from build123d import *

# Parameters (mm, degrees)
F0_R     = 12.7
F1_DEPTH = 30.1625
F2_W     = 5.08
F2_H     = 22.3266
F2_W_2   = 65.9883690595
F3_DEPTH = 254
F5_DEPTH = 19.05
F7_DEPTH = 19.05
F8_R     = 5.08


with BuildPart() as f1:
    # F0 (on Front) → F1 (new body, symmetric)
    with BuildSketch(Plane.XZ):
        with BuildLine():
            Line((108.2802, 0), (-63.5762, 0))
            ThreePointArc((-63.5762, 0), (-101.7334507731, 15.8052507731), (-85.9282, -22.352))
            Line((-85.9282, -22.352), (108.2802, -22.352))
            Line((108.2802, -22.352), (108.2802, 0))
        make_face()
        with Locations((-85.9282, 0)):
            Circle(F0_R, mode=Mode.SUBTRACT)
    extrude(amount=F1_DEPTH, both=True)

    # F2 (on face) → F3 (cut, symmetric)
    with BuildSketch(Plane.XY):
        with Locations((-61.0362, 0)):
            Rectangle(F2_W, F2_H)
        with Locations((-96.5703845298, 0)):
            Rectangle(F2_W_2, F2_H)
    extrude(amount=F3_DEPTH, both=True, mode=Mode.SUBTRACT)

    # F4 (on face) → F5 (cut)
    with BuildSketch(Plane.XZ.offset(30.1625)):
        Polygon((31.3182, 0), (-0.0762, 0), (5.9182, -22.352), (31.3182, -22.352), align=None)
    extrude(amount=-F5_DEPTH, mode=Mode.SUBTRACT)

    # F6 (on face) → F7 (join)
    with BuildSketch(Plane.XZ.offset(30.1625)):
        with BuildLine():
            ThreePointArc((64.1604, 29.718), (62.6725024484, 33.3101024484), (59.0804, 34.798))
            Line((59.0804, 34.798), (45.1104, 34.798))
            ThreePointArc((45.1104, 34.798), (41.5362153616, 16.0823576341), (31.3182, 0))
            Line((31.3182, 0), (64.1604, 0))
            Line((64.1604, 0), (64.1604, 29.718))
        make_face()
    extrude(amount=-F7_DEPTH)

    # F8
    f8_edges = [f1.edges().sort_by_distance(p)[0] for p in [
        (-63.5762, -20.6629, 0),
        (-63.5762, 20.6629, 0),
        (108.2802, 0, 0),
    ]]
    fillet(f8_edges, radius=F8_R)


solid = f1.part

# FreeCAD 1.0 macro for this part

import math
import FreeCAD as App
import Part
import Sketcher
from FreeCAD import Vector
Q = App.Units.Quantity


def edges_at(feature, points):
    """Names of the edges that pass closest to the given points."""
    edges = feature.Shape.Edges
    near = lambda p: min(range(len(edges)), key=lambda i: edges[i].distToShape(Part.Vertex(*p))[0])
    return sorted({f"Edge{near(p) + 1}" for p in points})

doc = App.newDocument("Part")
body = doc.addObject("PartDesign::Body", "Body")

# Sketch on XZ plane
sketch1 = body.newObject("Sketcher::SketchObject", "Sketch")
sketch1.AttachmentSupport = (doc.getObject("XZ_Plane"), [""])
sketch1.MapMode = "FlatFace"
sketch1.addGeometry([
    Part.LineSegment(Vector(108, 0, 0), Vector(-64, 0, 0)),  # 0
    Part.ArcOfCircle(Part.Circle(Vector(-86, 0, 0), Vector(0, 0, 1), 22), math.radians(0), math.radians(270)),  # 1
    Part.LineSegment(Vector(-86, -22, 0), Vector(108, -22, 0)),  # 2
    Part.LineSegment(Vector(108, -22, 0), Vector(108, 0, 0)),  # 3
    Part.Circle(Vector(-86, 0, 0), Vector(0, 0, 1), 13),  # 4
], False)
sketch1.addConstraint([
    Sketcher.Constraint("Coincident", 0, 2, 1, 1),
    Sketcher.Constraint("Tangent", 1, 2, 2, 1),
    Sketcher.Constraint("Coincident", 2, 2, 3, 1),
    Sketcher.Constraint("Coincident", 3, 2, 0, 1),
    Sketcher.Constraint("Horizontal", 0),
    Sketcher.Constraint("Horizontal", 2),
    Sketcher.Constraint("Vertical", 3),
    Sketcher.Constraint("Coincident", 4, 3, 1, 3),
    Sketcher.Constraint("PointOnObject", 1, 3, -1),
    Sketcher.Constraint("PointOnObject", 0, 2, -1),
    Sketcher.Constraint("Diameter", 4, Q("1 in")),
    Sketcher.Constraint("Radius", 1, Q("0.88 in")),
    Sketcher.Constraint("DistanceX", 0, 2, 0, 1, Q("6.766 in")),
    Sketcher.Constraint("DistanceX", 1, 3, -1, 1, Q("3.383 in")),
])
pad1 = body.newObject("PartDesign::Pad", "Pad")
pad1.Profile = sketch1
pad1.Length = Q("2.375 in")
pad1.Midplane = True

# Sketch on XY plane
sketch2 = body.newObject("Sketcher::SketchObject", "Sketch001")
sketch2.AttachmentSupport = (doc.getObject("XY_Plane"), [""])
sketch2.MapMode = "FlatFace"
sketch2.addGeometry([
    Part.LineSegment(Vector(-58, -11, 0), Vector(-58, 11, 0)),
    Part.LineSegment(Vector(-58, 11, 0), Vector(-130, 11, 0)),
    Part.LineSegment(Vector(-130, 11, 0), Vector(-130, -11, 0)),
    Part.LineSegment(Vector(-130, -11, 0), Vector(-58, -11, 0)),
], False)
sketch2.addConstraint([
    Sketcher.Constraint("Coincident", 0, 2, 1, 1),
    Sketcher.Constraint("Coincident", 1, 2, 2, 1),
    Sketcher.Constraint("Coincident", 2, 2, 3, 1),
    Sketcher.Constraint("Coincident", 3, 2, 0, 1),
    Sketcher.Constraint("Vertical", 0),
    Sketcher.Constraint("Horizontal", 1),
    Sketcher.Constraint("Vertical", 2),
    Sketcher.Constraint("Horizontal", 3),
    Sketcher.Constraint("DistanceY", 0, 1, 0, 2, Q("0.879 in")),
    Sketcher.Constraint("DistanceX", 0, 2, -1, 1, Q("2.303 in")),
    Sketcher.Constraint("DistanceY", -1, 1, 0, 2, Q("0.4395 in")),
    Sketcher.Constraint("DistanceX", 1, 2, 1, 1, Q("71.068369 mm")),
])
pocket1 = body.newObject("PartDesign::Pocket", "Pocket")
pocket1.Profile = sketch2
pocket1.Length = Q("20 in")
pocket1.Midplane = True

# Sketch on XZ plane
sketch3 = body.newObject("Sketcher::SketchObject", "Sketch002")
sketch3.AttachmentSupport = (doc.getObject("XZ_Plane"), [""])
sketch3.MapMode = "FlatFace"
sketch3.AttachmentOffset = App.Placement(Vector(0, 0, 1.1875 * 25.4), App.Rotation())
sketch3.addGeometry([
    Part.LineSegment(Vector(31, 0, 0), Vector(0, 0, 0)),
    Part.LineSegment(Vector(0, 0, 0), Vector(6, -22, 0)),
    Part.LineSegment(Vector(6, -22, 0), Vector(31, -22, 0)),
    Part.LineSegment(Vector(31, -22, 0), Vector(31, 0, 0)),
], False)
sketch3.addConstraint([
    Sketcher.Constraint("Coincident", 0, 2, 1, 1),
    Sketcher.Constraint("Coincident", 1, 2, 2, 1),
    Sketcher.Constraint("Coincident", 2, 2, 3, 1),
    Sketcher.Constraint("Coincident", 3, 2, 0, 1),
    Sketcher.Constraint("Horizontal", 0),
    Sketcher.Constraint("Horizontal", 2),
    Sketcher.Constraint("Vertical", 3),
    Sketcher.Constraint("PointOnObject", 0, 2, -1),
    Sketcher.Constraint("DistanceX", 2, 1, 2, 2, Q("1 in")),
    Sketcher.Constraint("DistanceY", 3, 1, 3, 2, Q("0.88 in")),
    Sketcher.Constraint("DistanceX", 0, 2, 0, 1, Q("1.236 in")),
    Sketcher.Constraint("DistanceX", 0, 2, -1, 1, Q("0.003 in")),
])
pocket2 = body.newObject("PartDesign::Pocket", "Pocket001")
pocket2.Profile = sketch3
pocket2.Length = Q("0.75 in")

# Sketch on XZ plane
sketch4 = body.newObject("Sketcher::SketchObject", "Sketch003")
sketch4.AttachmentSupport = (doc.getObject("XZ_Plane"), [""])
sketch4.MapMode = "FlatFace"
sketch4.AttachmentOffset = App.Placement(Vector(0, 0, 1.1875 * 25.4), App.Rotation())
sketch4.addGeometry([
    Part.ArcOfCircle(Part.Circle(Vector(59, 30, 0), Vector(0, 0, 1), 5), math.radians(0), math.radians(90)),  # 0
    Part.LineSegment(Vector(59, 35, 0), Vector(45, 35, 0)),  # 1
    Part.ArcOfCircle(Part.Circle(Vector(-6, 35, 0), Vector(0, 0, 1), 51), math.radians(-43), math.radians(0)),  # 2
    Part.LineSegment(Vector(31, 0, 0), Vector(64, 0, 0)),  # 3
    Part.LineSegment(Vector(64, 0, 0), Vector(64, 30, 0)),  # 4
], False)
sketch4.addConstraint([
    Sketcher.Constraint("Tangent", 0, 2, 1, 1),
    Sketcher.Constraint("Coincident", 1, 2, 2, 2),
    Sketcher.Constraint("Coincident", 2, 1, 3, 1),
    Sketcher.Constraint("Coincident", 3, 2, 4, 1),
    Sketcher.Constraint("Tangent", 4, 2, 0, 1),
    Sketcher.Constraint("Horizontal", 1),
    Sketcher.Constraint("Horizontal", 3),
    Sketcher.Constraint("Vertical", 4),
    Sketcher.Constraint("PointOnObject", 2, 1, -1),
    Sketcher.Constraint("Radius", 2, Q("2 in")),
    Sketcher.Constraint("Radius", 0, Q("0.2 in")),
    Sketcher.Constraint("DistanceX", 1, 2, 1, 1, Q("0.55 in")),
    Sketcher.Constraint("DistanceY", 4, 1, 4, 2, Q("1.17 in")),
    Sketcher.Constraint("DistanceX", 3, 1, 3, 2, Q("1.293 in")),
    Sketcher.Constraint("DistanceX", -1, 1, 0, 3, Q("2.326 in")),
])
pad2 = body.newObject("PartDesign::Pad", "Pad001")
pad2.Profile = sketch4
pad2.Length = Q("0.75 in")
pad2.Reversed = True
doc.recompute()

fillet = body.newObject("PartDesign::Fillet", "Fillet")
fillet.Base = (pad2, edges_at(pad2, [(-63.576, -20.663, 0), (-63.576, 20.663, 0), (108.28, 0, 0)]))
fillet.Radius = Q("0.2 in")

doc.recompute()
